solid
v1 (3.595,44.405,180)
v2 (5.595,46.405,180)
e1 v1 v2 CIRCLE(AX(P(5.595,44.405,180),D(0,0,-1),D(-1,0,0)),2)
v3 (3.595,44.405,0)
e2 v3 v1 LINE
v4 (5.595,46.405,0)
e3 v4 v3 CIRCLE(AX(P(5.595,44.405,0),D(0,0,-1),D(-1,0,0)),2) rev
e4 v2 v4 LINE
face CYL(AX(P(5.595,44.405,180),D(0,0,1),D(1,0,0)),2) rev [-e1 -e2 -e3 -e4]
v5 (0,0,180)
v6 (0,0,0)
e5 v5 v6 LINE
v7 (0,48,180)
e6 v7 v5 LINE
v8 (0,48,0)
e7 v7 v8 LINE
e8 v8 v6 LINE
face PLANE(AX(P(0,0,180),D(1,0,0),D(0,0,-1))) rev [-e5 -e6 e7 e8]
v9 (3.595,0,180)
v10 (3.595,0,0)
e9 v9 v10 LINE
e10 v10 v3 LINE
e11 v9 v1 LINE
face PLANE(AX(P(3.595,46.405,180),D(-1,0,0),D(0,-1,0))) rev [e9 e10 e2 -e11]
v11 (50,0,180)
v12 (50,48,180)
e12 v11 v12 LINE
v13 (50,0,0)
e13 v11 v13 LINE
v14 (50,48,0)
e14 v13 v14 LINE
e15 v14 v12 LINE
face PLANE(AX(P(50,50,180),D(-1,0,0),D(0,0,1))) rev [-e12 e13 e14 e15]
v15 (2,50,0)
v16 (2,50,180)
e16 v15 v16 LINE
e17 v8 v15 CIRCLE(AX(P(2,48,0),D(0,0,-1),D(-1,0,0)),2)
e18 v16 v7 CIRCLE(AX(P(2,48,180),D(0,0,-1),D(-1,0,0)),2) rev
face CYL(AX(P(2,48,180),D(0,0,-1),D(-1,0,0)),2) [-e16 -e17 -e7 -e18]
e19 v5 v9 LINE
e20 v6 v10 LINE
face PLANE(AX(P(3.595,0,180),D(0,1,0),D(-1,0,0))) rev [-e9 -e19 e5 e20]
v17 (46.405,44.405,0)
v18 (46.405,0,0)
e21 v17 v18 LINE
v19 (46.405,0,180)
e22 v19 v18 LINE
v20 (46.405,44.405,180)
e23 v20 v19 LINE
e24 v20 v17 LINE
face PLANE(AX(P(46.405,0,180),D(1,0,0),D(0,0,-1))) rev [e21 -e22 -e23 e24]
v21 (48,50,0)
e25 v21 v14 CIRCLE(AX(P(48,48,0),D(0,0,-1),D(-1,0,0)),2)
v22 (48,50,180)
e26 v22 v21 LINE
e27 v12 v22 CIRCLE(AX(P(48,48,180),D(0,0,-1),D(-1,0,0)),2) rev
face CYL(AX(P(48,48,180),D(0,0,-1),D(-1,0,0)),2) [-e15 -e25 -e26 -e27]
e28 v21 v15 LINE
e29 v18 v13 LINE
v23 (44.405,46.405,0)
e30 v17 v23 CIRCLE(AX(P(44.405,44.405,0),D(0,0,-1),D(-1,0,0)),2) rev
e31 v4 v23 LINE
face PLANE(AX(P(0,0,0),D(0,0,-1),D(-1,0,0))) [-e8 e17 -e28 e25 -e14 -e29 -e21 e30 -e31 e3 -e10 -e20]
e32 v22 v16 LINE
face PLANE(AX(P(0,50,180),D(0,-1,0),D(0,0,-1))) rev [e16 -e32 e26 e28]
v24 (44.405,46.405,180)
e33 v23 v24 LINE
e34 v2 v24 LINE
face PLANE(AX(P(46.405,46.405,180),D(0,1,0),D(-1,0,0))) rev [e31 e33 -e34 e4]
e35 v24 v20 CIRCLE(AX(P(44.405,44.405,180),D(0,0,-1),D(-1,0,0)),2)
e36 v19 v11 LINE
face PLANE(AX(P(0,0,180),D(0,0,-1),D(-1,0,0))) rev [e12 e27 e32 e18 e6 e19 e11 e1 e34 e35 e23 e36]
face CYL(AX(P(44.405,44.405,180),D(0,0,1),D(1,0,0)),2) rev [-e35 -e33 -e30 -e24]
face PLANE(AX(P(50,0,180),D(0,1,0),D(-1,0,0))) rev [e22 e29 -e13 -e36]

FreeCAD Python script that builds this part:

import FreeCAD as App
import Part
import Sketcher
from FreeCAD import Vector


def edges_at(feature, points):
    """Names of the edges that pass closest to the given points."""
    edges = feature.Shape.Edges
    near = lambda p: min(range(len(edges)), key=lambda i: edges[i].distToShape(Part.Vertex(*p))[0])
    return sorted({f"Edge{near(p) + 1}" for p in points})

doc = App.newDocument("Part")
body = doc.addObject("PartDesign::Body", "Body")

# Sketch on XY plane
sketch1 = body.newObject("Sketcher::SketchObject", "Sketch")
sketch1.AttachmentSupport = (doc.getObject("XY_Plane"), [""])
sketch1.MapMode = "FlatFace"
sketch1.addGeometry([
    Part.LineSegment(Vector(0, 50, 0), Vector(0, 0, 0)),  # 0
    Part.LineSegment(Vector(0, 0, 0), Vector(3.595, 0, 0)),  # 1
    Part.LineSegment(Vector(3.595, 0, 0), Vector(3.595, 46.405, 0)),  # 2
    Part.LineSegment(Vector(3.595, 46.405, 0), Vector(46.405, 46.405, 0)),  # 3
    Part.LineSegment(Vector(46.405, 46.405, 0), Vector(46.405, 0, 0)),  # 4
    Part.LineSegment(Vector(46.405, 0, 0), Vector(50, 0, 0)),  # 5
    Part.LineSegment(Vector(50, 0, 0), Vector(50, 50, 0)),  # 6
    Part.LineSegment(Vector(50, 50, 0), Vector(0, 50, 0)),  # 7
], False)
sketch1.addConstraint([
    Sketcher.Constraint("Coincident", 0, 2, 1, 1),
    Sketcher.Constraint("Coincident", 1, 2, 2, 1),
    Sketcher.Constraint("Coincident", 2, 2, 3, 1),
    Sketcher.Constraint("Coincident", 3, 2, 4, 1),
    Sketcher.Constraint("Coincident", 4, 2, 5, 1),
    Sketcher.Constraint("Coincident", 5, 2, 6, 1),
    Sketcher.Constraint("Coincident", 6, 2, 7, 1),
    Sketcher.Constraint("Coincident", 7, 2, 0, 1),
    Sketcher.Constraint("Vertical", 0),
    Sketcher.Constraint("Horizontal", 1),
    Sketcher.Constraint("Vertical", 2),
    Sketcher.Constraint("Horizontal", 3),
    Sketcher.Constraint("Vertical", 4),
    Sketcher.Constraint("Horizontal", 5),
    Sketcher.Constraint("Vertical", 6),
    Sketcher.Constraint("Horizontal", 7),
    Sketcher.Constraint("Coincident", 0, 2, -1, 1),
    Sketcher.Constraint("PointOnObject", 4, 2, -1),
    Sketcher.Constraint("Equal", 1, 5),
    Sketcher.Constraint("Equal", 7, 0),
    Sketcher.Constraint("DistanceX", 7, 2, 7, 1, 50.0),
    Sketcher.Constraint("DistanceX", 3, 1, 3, 2, 42.81),
    Sketcher.Constraint("DistanceY", 2, 1, 2, 2, 46.405),
])
pad1 = body.newObject("PartDesign::Pad", "Pad")
pad1.Profile = sketch1
pad1.Length = 180
doc.recompute()

fillet = body.newObject("PartDesign::Fillet", "Fillet")
fillet.Base = (pad1, edges_at(pad1, [
    (0, 50, 90),
    (50, 50, 90),
    (46.405, 46.405, 90),
    (3.595, 46.405, 90),
]))
fillet.Radius = 2

doc.recompute()
